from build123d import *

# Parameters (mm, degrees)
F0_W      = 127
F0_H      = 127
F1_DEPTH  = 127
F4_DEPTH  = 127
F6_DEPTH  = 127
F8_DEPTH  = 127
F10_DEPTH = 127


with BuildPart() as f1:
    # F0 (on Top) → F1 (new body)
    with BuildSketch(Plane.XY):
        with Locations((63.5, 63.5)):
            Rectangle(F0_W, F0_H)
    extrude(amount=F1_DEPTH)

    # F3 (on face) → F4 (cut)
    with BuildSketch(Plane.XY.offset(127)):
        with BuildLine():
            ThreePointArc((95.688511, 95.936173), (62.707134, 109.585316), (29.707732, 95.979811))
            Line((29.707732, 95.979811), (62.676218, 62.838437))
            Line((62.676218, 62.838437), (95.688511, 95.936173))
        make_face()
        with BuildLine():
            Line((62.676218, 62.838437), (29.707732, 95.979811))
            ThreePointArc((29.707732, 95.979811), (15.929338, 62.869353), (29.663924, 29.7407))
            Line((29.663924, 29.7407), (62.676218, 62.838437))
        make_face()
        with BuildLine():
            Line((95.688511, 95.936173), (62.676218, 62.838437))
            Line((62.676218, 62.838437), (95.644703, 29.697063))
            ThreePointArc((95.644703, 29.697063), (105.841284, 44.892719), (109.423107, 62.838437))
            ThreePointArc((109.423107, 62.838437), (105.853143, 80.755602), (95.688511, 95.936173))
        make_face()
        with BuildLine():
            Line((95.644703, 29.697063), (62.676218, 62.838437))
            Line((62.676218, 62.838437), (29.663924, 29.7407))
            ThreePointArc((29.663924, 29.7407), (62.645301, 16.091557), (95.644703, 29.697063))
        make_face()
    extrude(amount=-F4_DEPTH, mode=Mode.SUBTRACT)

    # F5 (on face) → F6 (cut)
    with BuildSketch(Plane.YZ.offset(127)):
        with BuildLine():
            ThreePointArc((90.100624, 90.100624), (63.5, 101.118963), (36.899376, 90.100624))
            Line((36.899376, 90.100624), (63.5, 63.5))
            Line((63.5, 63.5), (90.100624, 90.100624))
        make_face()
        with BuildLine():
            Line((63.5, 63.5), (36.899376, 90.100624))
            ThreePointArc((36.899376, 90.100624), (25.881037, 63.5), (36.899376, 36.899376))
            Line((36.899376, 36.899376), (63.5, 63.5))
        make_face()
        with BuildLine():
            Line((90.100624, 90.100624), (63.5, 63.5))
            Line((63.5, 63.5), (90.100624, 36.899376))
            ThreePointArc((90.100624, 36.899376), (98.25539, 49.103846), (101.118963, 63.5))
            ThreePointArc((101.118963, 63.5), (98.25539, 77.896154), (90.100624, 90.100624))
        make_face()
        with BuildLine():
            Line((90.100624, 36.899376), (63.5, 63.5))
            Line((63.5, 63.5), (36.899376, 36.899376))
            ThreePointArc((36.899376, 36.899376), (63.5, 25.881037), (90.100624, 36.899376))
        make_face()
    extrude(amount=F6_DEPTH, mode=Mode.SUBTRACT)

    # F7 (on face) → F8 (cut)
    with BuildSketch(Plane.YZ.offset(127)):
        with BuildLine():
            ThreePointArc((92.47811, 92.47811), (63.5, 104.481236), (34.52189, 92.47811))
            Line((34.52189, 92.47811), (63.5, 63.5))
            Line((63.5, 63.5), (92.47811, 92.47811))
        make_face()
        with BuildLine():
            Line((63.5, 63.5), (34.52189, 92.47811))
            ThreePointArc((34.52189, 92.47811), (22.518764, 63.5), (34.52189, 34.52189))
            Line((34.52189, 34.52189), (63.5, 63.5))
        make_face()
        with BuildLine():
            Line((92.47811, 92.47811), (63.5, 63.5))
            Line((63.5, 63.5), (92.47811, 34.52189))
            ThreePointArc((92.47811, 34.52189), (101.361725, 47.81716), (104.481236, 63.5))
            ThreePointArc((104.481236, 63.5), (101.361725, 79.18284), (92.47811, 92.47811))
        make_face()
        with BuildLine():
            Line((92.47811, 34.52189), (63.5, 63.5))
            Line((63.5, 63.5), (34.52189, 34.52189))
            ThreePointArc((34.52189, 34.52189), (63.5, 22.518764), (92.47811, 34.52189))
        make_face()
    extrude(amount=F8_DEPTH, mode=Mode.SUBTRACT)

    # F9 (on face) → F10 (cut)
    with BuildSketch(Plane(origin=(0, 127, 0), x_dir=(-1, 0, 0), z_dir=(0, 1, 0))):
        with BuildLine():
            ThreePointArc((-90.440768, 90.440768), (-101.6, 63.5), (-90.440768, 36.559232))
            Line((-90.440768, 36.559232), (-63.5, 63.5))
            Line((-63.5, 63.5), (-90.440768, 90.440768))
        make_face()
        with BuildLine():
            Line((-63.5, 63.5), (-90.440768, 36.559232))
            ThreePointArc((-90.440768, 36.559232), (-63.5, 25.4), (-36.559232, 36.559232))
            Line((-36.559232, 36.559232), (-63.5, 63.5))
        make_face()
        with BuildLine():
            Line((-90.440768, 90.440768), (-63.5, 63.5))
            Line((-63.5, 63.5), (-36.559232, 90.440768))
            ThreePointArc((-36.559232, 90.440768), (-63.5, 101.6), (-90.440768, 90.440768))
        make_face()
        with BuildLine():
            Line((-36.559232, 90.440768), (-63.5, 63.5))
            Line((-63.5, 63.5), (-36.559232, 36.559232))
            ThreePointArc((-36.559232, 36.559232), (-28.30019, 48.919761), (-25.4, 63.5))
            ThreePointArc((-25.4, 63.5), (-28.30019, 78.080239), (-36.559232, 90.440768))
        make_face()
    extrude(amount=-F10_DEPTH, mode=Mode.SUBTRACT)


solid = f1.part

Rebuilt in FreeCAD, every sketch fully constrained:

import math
import FreeCAD as App
import Part
import Sketcher
from FreeCAD import Vector
Q = App.Units.Quantity


def add_polygon(sketch, points):
    """Adds a closed chain of lines whose ends are joined by coincident constraints."""
    first, n = sketch.GeometryCount, len(points)
    for a, b in zip(points, points[1:] + points[:1]):
        sketch.addGeometry(Part.LineSegment(App.Vector(*a, 0), App.Vector(*b, 0)), False)
    for i in range(n):
        sketch.addConstraint(Sketcher.Constraint("Coincident", first + i, 2, first + (i + 1) % n, 1))

doc = App.newDocument("Part")
body = doc.addObject("PartDesign::Body", "Body")

sketch1 = body.newObject("Sketcher::SketchObject", "Sketch")
sketch1.AttachmentSupport = (doc.getObject("XY_Plane"), [""])
sketch1.MapMode = "FlatFace"
add_polygon(sketch1, [(0, 127), (0, 0), (127, 0), (127, 127)])
sketch1.addConstraint([
    Sketcher.Constraint("Vertical", 0),
    Sketcher.Constraint("Horizontal", 1),
    Sketcher.Constraint("Vertical", 2),
    Sketcher.Constraint("Horizontal", 3),
    Sketcher.Constraint("Coincident", 0, 2, -1, 1),
    Sketcher.Constraint("Equal", 3, 0),
    Sketcher.Constraint("DistanceX", 1, 1, 1, 2, Q("5 in")),
])
pad1 = body.newObject("PartDesign::Pad", "Pad")
pad1.Profile = sketch1
pad1.Length = Q("5 in")

sketch2 = body.newObject("Sketcher::SketchObject", "Sketch001")
sketch2.AttachmentSupport = (doc.getObject("XY_Plane"), [""])
sketch2.MapMode = "FlatFace"
sketch2.AttachmentOffset = App.Placement(Vector(0, 0, 5 * 25.4), App.Rotation())
sketch2.addGeometry([
    Part.ArcOfCircle(Part.Circle(Vector(63, 63, 0), Vector(0, 0, 1), 47), math.radians(45), math.radians(135)),
    Part.ArcOfCircle(Part.Circle(Vector(63, 63, 0), Vector(0, 0, 1), 47), math.radians(135), math.radians(225)),
    Part.ArcOfCircle(Part.Circle(Vector(63, 63, 0), Vector(0, 0, 1), 47), math.radians(-135), math.radians(-45)),
    Part.ArcOfCircle(Part.Circle(Vector(63, 63, 0), Vector(0, 0, 1), 47), math.radians(-45), math.radians(0)),
    Part.ArcOfCircle(Part.Circle(Vector(63, 63, 0), Vector(0, 0, 1), 47), math.radians(0), math.radians(45)),
], False)
sketch2.addConstraint([
    Sketcher.Constraint("Tangent", 0, 2, 1, 1),
    Sketcher.Constraint("Tangent", 1, 2, 2, 1),
    Sketcher.Constraint("Tangent", 2, 2, 3, 1),
    Sketcher.Constraint("Tangent", 3, 2, 4, 1),
    Sketcher.Constraint("Tangent", 4, 2, 0, 1),
    Sketcher.Constraint("Coincident", 2, 3, 0, 3),
    Sketcher.Constraint("Horizontal", 4, 3, 3, 2),
    Sketcher.Constraint("Radius", 0, 46.74689),
    Sketcher.Constraint("DistanceY", -1, 1, 1, 2, 29.7407),
    Sketcher.Constraint("DistanceX", -1, 1, 4, 3, 62.676222),
    Sketcher.Constraint("DistanceY", -1, 1, 4, 3, 62.838438),
    Sketcher.Constraint("DistanceY", -1, 1, 0, 2, 95.979811),
    Sketcher.Constraint("DistanceX", -1, 1, 4, 2, 95.688511),
    Sketcher.Constraint("DistanceY", 2, 2, 3, 3, 33.14137),
])
pocket1 = body.newObject("PartDesign::Pocket", "Pocket")
pocket1.Profile = sketch2
pocket1.Length = Q("5 in")

sketch3 = body.newObject("Sketcher::SketchObject", "Sketch002")
sketch3.AttachmentSupport = (doc.getObject("YZ_Plane"), [""])
sketch3.MapMode = "FlatFace"
sketch3.AttachmentOffset = App.Placement(Vector(0, 0, 5 * 25.4), App.Rotation())
sketch3.addGeometry([
    Part.ArcOfCircle(Part.Circle(Vector(64, 63, 0), Vector(0, 0, 1), 38), math.radians(45), math.radians(135)),
    Part.ArcOfCircle(Part.Circle(Vector(64, 64, 0), Vector(0, 0, 1), 38), math.radians(135), math.radians(225)),
    Part.ArcOfCircle(Part.Circle(Vector(64, 64, 0), Vector(0, 0, 1), 38), math.radians(-135), math.radians(-45)),
    Part.ArcOfCircle(Part.Circle(Vector(63, 63, 0), Vector(0, 0, 1), 38), math.radians(-45), math.radians(0)),
    Part.ArcOfCircle(Part.Circle(Vector(63, 64, 0), Vector(0, 0, 1), 38), math.radians(0), math.radians(45)),
], False)
sketch3.addConstraint([
    Sketcher.Constraint("Tangent", 0, 2, 1, 1),
    Sketcher.Constraint("Tangent", 1, 2, 2, 1),
    Sketcher.Constraint("Tangent", 2, 2, 3, 1),
    Sketcher.Constraint("Tangent", 3, 2, 4, 1),
    Sketcher.Constraint("Tangent", 4, 2, 0, 1),
    Sketcher.Constraint("Coincident", 2, 3, 0, 3),
    Sketcher.Constraint("Horizontal", 1, 2, 2, 2),
    Sketcher.Constraint("Horizontal", 4, 3, 3, 2),
    Sketcher.Constraint("Horizontal", 0, 2, 4, 2),
    Sketcher.Constraint("Vertical", 0, 2, 1, 2),
    Sketcher.Constraint("DistanceX", -1, 1, 0, 3, Q("2.5 in")),
    Sketcher.Constraint("DistanceY", -1, 1, 0, 3, Q("2.5 in")),
    Sketcher.Constraint("Radius", 0, 37.618964),
    Sketcher.Constraint("DistanceX", 2, 2, 3, 2, 11.018339),
])
pocket2 = body.newObject("PartDesign::Pocket", "Pocket001")
pocket2.Profile = sketch3
pocket2.Length = Q("5 in")
pocket2.Reversed = True

sketch4 = body.newObject("Sketcher::SketchObject", "Sketch003")
sketch4.AttachmentSupport = (doc.getObject("YZ_Plane"), [""])
sketch4.MapMode = "FlatFace"
sketch4.AttachmentOffset = App.Placement(Vector(0, 0, 5 * 25.4), App.Rotation())
sketch4.addGeometry([
    Part.ArcOfCircle(Part.Circle(Vector(64, 63, 0), Vector(0, 0, 1), 41), math.radians(45), math.radians(135)),
    Part.ArcOfCircle(Part.Circle(Vector(64, 64, 0), Vector(0, 0, 1), 41), math.radians(135), math.radians(225)),
    Part.ArcOfCircle(Part.Circle(Vector(64, 64, 0), Vector(0, 0, 1), 41), math.radians(-135), math.radians(-45)),
    Part.ArcOfCircle(Part.Circle(Vector(63, 64, 0), Vector(0, 0, 1), 41), math.radians(-45), math.radians(0)),
    Part.ArcOfCircle(Part.Circle(Vector(63, 63, 0), Vector(0, 0, 1), 41), math.radians(0), math.radians(45)),
], False)
sketch4.addConstraint([
    Sketcher.Constraint("Tangent", 0, 2, 1, 1),
    Sketcher.Constraint("Tangent", 1, 2, 2, 1),
    Sketcher.Constraint("Tangent", 2, 2, 3, 1),
    Sketcher.Constraint("Tangent", 3, 2, 4, 1),
    Sketcher.Constraint("Tangent", 4, 2, 0, 1),
    Sketcher.Constraint("Coincident", 2, 3, 0, 3),
    Sketcher.Constraint("Horizontal", 1, 2, 2, 2),
    Sketcher.Constraint("Horizontal", 4, 3, 3, 2),
    Sketcher.Constraint("Horizontal", 0, 2, 4, 2),
    Sketcher.Constraint("Vertical", 0, 2, 1, 2),
    Sketcher.Constraint("DistanceX", -1, 1, 0, 3, Q("2.5 in")),
    Sketcher.Constraint("DistanceY", -1, 1, 0, 3, Q("2.5 in")),
    Sketcher.Constraint("Radius", 3, 40.981239),
    Sketcher.Constraint("DistanceX", -1, 1, 0, 2, 34.52189),
])
pocket3 = body.newObject("PartDesign::Pocket", "Pocket002")
pocket3.Profile = sketch4
pocket3.Length = Q("5 in")
pocket3.Reversed = True

sketch5 = body.newObject("Sketcher::SketchObject", "Sketch004")
sketch5.AttachmentSupport = (doc.getObject("XZ_Plane"), [""])
sketch5.MapMode = "FlatFace"
sketch5.AttachmentOffset = App.Placement(Vector(0, 0, -5 * 25.4), App.Rotation())
sketch5.addGeometry([
    Part.ArcOfCircle(Part.Circle(Vector(64, 64, 0), Vector(0, 0, 1), 38), math.radians(-45), math.radians(45)),
    Part.ArcOfCircle(Part.Circle(Vector(64, 63, 0), Vector(0, 0, 1), 38), math.radians(-135), math.radians(-45)),
    Part.ArcOfCircle(Part.Circle(Vector(63, 63, 0), Vector(0, 0, 1), 38), math.radians(180), math.radians(225)),
    Part.ArcOfCircle(Part.Circle(Vector(63, 64, 0), Vector(0, 0, 1), 38), math.radians(135), math.radians(180)),
    Part.ArcOfCircle(Part.Circle(Vector(64, 64, 0), Vector(0, 0, 1), 38), math.radians(45), math.radians(135)),
], False)
sketch5.addConstraint([
    Sketcher.Constraint("Tangent", 0, 1, 1, 2),
    Sketcher.Constraint("Tangent", 1, 1, 2, 2),
    Sketcher.Constraint("Tangent", 2, 1, 3, 2),
    Sketcher.Constraint("Tangent", 3, 1, 4, 2),
    Sketcher.Constraint("Tangent", 4, 1, 0, 2),
    Sketcher.Constraint("Coincident", 2, 3, 0, 3),
    Sketcher.Constraint("Horizontal", 0, 1, 1, 1),
    Sketcher.Constraint("Horizontal", 4, 3, 2, 1),
    Sketcher.Constraint("Horizontal", 3, 1, 4, 1),
    Sketcher.Constraint("Vertical", 1, 1, 3, 1),
    Sketcher.Constraint("Radius", 0, Q("1.4999999 in")),
    Sketcher.Constraint("DistanceX", -1, 1, 2, 1, Q("1 in")),
    Sketcher.Constraint("DistanceY", -1, 1, 0, 3, Q("2.5 in")),
    Sketcher.Constraint("DistanceY", 0, 1, 4, 3, 26.94077),
])
pocket4 = body.newObject("PartDesign::Pocket", "Pocket003")
pocket4.Profile = sketch5
pocket4.Length = Q("5 in")
pocket4.Reversed = True

doc.recompute()
